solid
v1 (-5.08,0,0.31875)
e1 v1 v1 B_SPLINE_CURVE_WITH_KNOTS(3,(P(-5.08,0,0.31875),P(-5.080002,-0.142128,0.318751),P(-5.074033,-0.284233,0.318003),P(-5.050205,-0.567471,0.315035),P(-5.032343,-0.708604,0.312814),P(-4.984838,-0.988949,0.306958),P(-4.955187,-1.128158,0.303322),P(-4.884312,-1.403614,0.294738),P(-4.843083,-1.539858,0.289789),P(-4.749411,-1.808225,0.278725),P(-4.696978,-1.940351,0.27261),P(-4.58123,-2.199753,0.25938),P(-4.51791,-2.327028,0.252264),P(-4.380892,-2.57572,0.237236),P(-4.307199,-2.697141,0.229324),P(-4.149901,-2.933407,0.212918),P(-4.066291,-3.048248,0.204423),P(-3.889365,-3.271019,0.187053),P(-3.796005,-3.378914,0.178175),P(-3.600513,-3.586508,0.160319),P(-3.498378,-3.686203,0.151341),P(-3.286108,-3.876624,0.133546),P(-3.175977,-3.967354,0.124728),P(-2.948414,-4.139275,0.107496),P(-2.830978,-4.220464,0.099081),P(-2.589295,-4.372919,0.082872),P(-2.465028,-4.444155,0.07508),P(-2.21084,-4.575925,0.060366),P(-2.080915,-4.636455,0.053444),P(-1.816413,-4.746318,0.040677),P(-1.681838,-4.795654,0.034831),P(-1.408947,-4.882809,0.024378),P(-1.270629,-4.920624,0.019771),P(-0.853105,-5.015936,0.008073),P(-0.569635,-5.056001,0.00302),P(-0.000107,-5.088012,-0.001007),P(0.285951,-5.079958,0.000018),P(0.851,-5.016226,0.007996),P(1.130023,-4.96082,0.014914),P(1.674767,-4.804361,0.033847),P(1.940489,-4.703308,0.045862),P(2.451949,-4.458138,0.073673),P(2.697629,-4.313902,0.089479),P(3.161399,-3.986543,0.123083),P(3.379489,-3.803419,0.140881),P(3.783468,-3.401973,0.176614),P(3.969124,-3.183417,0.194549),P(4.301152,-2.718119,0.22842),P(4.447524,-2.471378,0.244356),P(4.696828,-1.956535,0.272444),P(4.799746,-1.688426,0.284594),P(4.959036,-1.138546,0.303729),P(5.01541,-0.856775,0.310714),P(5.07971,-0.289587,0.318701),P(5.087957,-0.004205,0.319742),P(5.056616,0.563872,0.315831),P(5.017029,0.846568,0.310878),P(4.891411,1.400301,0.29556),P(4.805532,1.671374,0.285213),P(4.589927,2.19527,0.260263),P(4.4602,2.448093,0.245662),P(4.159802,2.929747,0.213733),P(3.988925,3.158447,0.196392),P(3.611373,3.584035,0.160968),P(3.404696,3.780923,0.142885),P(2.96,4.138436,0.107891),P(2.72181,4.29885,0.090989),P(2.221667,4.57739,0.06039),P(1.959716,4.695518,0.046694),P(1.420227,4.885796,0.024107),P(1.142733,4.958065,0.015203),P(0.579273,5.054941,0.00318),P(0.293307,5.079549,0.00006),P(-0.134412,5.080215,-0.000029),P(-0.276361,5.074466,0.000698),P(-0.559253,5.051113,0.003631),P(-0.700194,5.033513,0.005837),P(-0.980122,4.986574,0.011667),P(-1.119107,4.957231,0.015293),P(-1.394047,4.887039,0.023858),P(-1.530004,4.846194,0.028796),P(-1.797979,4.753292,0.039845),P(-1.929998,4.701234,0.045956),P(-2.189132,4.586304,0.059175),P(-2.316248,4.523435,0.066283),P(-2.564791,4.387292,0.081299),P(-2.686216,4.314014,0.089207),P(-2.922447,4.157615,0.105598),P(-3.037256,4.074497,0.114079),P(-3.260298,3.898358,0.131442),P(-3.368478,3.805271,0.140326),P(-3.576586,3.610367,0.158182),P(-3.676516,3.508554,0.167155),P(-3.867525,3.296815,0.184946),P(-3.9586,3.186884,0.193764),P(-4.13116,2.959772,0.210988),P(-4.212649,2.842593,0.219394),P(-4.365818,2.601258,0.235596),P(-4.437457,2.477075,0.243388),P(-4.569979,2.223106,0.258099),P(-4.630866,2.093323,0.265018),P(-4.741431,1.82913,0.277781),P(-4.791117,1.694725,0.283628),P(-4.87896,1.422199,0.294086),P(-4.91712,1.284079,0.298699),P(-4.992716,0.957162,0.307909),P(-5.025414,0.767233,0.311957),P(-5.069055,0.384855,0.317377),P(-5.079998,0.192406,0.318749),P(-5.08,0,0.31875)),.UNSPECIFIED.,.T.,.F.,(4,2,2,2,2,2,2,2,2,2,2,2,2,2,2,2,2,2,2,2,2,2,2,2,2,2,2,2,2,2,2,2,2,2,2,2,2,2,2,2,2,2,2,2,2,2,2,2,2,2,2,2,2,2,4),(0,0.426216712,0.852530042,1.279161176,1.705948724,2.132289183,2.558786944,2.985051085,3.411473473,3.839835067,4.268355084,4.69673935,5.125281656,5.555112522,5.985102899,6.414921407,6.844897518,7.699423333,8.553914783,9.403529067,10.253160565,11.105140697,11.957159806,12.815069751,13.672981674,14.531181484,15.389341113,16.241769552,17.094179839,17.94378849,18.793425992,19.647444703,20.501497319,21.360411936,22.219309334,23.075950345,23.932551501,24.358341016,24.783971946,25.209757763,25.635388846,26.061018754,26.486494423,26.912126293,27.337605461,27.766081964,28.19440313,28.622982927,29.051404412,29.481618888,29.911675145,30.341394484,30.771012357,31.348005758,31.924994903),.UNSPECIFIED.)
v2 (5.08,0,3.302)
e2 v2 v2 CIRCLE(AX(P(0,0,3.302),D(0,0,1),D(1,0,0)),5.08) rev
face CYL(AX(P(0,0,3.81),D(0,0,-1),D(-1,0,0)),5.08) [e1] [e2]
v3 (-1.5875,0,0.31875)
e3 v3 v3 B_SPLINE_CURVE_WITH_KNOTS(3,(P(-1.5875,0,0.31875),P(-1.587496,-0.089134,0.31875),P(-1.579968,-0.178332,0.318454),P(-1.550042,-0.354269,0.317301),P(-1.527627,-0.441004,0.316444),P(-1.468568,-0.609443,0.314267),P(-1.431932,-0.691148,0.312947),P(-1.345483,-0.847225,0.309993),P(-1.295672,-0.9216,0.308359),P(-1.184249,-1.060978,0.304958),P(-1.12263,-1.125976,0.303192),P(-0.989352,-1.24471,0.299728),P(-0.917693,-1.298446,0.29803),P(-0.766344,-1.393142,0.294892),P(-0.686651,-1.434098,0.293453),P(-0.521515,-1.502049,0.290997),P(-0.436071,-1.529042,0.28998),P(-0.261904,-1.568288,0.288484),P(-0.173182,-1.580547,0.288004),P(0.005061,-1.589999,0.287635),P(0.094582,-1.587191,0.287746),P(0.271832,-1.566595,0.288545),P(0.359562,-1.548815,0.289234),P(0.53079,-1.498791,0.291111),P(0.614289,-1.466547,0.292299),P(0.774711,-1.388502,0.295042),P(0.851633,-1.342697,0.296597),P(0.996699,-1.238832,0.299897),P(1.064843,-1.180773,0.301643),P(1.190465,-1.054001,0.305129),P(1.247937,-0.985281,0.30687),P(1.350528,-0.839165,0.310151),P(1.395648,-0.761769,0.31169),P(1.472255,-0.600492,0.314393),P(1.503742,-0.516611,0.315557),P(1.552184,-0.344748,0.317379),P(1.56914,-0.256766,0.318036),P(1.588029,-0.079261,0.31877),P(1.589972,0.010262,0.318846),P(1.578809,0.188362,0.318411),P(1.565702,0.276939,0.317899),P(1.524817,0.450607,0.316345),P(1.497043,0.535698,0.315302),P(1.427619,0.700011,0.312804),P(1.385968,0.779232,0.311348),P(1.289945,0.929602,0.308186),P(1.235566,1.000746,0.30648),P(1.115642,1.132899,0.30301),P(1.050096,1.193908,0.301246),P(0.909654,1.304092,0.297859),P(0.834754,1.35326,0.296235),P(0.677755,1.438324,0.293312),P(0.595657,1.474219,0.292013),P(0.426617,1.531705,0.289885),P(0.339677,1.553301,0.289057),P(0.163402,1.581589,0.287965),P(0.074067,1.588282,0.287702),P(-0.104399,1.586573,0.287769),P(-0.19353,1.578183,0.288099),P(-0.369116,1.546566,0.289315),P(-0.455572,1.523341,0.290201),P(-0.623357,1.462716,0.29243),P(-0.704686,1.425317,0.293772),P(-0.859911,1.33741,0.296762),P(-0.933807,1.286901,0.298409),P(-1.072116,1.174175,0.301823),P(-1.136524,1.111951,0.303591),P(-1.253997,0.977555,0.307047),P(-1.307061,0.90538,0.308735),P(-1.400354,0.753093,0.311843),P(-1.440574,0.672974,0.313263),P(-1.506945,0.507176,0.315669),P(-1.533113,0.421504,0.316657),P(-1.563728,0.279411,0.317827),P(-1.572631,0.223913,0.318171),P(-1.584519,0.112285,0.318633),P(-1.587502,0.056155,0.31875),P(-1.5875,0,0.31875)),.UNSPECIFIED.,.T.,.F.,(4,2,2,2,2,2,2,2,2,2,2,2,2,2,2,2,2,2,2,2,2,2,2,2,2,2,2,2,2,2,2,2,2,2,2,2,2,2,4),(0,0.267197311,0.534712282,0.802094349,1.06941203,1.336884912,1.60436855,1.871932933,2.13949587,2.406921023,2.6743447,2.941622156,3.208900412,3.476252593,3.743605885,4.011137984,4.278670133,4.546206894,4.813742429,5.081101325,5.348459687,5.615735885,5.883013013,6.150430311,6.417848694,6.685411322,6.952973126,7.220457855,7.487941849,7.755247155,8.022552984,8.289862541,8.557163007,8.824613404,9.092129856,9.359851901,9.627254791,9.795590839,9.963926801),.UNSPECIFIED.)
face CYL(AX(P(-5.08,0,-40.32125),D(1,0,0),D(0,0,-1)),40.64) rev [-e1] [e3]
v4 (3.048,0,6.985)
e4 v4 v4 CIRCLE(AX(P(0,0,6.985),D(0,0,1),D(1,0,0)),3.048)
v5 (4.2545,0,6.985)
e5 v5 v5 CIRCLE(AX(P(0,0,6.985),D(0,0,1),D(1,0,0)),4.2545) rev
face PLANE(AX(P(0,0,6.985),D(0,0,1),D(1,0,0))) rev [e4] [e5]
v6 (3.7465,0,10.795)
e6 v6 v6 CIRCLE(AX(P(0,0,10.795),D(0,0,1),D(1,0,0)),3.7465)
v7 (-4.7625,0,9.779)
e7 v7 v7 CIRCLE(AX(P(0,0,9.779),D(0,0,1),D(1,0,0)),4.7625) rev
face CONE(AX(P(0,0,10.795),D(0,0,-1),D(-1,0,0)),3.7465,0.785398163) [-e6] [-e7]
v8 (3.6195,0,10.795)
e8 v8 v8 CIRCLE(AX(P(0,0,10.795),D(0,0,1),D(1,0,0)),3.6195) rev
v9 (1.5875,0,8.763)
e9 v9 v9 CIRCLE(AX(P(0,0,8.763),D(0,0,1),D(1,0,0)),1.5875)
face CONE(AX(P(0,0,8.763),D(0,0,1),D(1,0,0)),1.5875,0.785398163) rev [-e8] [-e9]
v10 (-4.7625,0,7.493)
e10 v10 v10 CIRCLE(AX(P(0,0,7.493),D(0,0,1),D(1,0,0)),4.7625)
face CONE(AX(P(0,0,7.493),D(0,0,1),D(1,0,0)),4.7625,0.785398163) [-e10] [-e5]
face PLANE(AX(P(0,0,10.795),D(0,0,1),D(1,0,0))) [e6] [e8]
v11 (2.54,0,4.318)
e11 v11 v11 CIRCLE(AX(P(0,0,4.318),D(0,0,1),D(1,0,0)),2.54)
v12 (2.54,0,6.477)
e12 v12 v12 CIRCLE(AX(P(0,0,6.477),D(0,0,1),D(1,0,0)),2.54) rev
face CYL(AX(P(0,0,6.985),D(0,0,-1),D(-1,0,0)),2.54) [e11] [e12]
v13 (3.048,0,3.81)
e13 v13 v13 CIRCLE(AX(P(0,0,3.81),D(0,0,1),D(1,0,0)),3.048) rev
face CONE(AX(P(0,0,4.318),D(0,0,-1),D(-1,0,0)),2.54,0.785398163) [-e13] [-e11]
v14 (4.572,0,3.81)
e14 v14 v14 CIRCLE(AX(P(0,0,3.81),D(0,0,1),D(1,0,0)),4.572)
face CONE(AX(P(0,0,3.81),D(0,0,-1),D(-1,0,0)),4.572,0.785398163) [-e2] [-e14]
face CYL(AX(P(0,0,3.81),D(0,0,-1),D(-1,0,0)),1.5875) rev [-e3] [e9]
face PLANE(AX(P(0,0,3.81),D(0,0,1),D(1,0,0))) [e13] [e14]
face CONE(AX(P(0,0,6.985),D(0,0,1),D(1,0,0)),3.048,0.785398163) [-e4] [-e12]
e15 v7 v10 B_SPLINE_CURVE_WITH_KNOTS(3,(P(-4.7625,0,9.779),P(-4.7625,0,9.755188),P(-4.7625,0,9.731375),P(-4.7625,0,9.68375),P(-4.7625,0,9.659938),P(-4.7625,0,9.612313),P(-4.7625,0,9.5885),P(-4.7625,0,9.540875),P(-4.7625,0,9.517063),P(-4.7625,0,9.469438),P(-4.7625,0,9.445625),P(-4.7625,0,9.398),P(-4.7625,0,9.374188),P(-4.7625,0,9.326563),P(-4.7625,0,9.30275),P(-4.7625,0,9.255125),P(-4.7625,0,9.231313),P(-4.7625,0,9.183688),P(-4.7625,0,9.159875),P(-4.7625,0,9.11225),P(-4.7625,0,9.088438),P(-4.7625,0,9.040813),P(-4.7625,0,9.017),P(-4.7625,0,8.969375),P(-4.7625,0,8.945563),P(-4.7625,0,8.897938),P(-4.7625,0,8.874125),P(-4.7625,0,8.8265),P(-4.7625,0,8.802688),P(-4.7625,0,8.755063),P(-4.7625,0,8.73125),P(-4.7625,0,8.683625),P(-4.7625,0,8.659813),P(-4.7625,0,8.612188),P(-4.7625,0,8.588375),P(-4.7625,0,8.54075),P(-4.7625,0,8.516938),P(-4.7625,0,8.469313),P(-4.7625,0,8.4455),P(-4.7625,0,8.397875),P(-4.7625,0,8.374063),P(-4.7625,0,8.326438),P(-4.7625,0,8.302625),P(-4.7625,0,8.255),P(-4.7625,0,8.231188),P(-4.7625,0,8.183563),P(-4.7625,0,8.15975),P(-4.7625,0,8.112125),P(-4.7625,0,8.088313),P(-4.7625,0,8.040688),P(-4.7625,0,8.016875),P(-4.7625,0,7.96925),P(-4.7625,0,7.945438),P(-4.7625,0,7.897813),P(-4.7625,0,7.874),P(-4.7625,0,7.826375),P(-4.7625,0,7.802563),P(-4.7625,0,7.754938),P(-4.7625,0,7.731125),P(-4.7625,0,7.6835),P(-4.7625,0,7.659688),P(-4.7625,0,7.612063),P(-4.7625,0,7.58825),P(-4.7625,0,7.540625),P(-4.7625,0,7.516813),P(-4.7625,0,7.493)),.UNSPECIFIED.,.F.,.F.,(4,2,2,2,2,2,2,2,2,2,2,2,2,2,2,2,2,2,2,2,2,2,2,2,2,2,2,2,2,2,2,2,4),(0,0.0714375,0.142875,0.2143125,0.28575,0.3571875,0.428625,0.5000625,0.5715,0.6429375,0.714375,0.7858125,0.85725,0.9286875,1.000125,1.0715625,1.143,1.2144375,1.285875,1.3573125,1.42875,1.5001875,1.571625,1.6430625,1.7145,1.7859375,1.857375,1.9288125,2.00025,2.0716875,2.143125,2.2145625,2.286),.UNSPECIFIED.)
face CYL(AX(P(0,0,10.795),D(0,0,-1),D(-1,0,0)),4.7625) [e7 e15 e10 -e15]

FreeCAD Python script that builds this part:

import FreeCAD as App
import Part
import Sketcher

V = App.Vector
Q = App.Units.Quantity


def edges_at(feature, points):
    """Names of the edges that pass closest to the given points."""
    edges = feature.Shape.Edges
    near = lambda p: min(range(len(edges)), key=lambda i: edges[i].distToShape(Part.Vertex(*p))[0])
    return sorted({f"Edge{near(p) + 1}" for p in points})

doc = App.newDocument("Part")
body = doc.addObject("PartDesign::Body", "Body")

sketch1 = doc.addObject("Sketcher::SketchObject", "Sketch")
body.addObject(sketch1)
sketch1.AttachmentSupport = (doc.XY_Plane, [""])
sketch1.MapMode = "FlatFace"
sketch1.addGeometry([
    Part.Circle(V(0, 0, 0), V(0, 0, 1), 5.08),
    Part.Circle(V(0, 0, 0), V(0, 0, 1), 1.5875),
], False)
sketch1.addConstraint([
    Sketcher.Constraint("Coincident", 0, 3, -1, 1),
    Sketcher.Constraint("Coincident", 1, 3, -1, 1),
    Sketcher.Constraint("Diameter", 0, Q("0.4 in")),
    Sketcher.Constraint("Diameter", 1, Q("0.125 in")),
])
pad1 = doc.addObject("PartDesign::Pad", "Pad")
body.addObject(pad1)
pad1.Profile = sketch1
pad1.Length = Q("0.15 in")

sketch2 = doc.addObject("Sketcher::SketchObject", "Sketch001")
body.addObject(sketch2)
sketch2.AttachmentSupport = (doc.XY_Plane, [""])
sketch2.MapMode = "FlatFace"
sketch2.AttachmentOffset = App.Placement(V(0, 0, 0.15 * 25.4), App.Rotation())
sketch2.addGeometry([
    Part.Circle(V(0, 0, 0), V(0, 0, 1), 2.54),
    Part.Circle(V(0, 0, 0), V(0, 0, 1), 1.5875),
], False)
sketch2.addConstraint([
    Sketcher.Constraint("Coincident", 0, 3, -1, 1),
    Sketcher.Constraint("Coincident", 1, 3, -1, 1),
    Sketcher.Constraint("Diameter", 0, Q("0.2 in")),
    Sketcher.Constraint("Diameter", 1, Q("0.125 in")),
])
pad2 = doc.addObject("PartDesign::Pad", "Pad001")
body.addObject(pad2)
pad2.Profile = sketch2
pad2.Length = Q("0.125 in")

sketch3 = doc.addObject("Sketcher::SketchObject", "Sketch002")
body.addObject(sketch3)
sketch3.AttachmentSupport = (doc.XY_Plane, [""])
sketch3.MapMode = "FlatFace"
sketch3.AttachmentOffset = App.Placement(V(0, 0, 0.275 * 25.4), App.Rotation())
sketch3.addGeometry([
    Part.Circle(V(0, 0, 0), V(0, 0, 1), 4.7625),
    Part.Circle(V(0, 0, 0), V(0, 0, 1), 1.5875),
], False)
sketch3.addConstraint([
    Sketcher.Constraint("Coincident", 0, 3, -1, 1),
    Sketcher.Constraint("Coincident", 1, 3, -1, 1),
    Sketcher.Constraint("Diameter", 0, Q("0.375 in")),
    Sketcher.Constraint("Diameter", 1, Q("0.125 in")),
])
pad3 = doc.addObject("PartDesign::Pad", "Pad002")
body.addObject(pad3)
pad3.Profile = sketch3
pad3.Length = Q("0.15 in")
doc.recompute()

chamfer = doc.addObject("PartDesign::Chamfer", "Chamfer")
body.addObject(chamfer)
chamfer.Base = (pad3, edges_at(pad3, [(-2.54, 0, 6.985), (-2.54, 0, 3.81)]))
chamfer.Size = Q("0.02 in")
doc.recompute()

chamfer2 = doc.addObject("PartDesign::Chamfer", "Chamfer001")
body.addObject(chamfer2)
chamfer2.Base = (chamfer, edges_at(chamfer, [(4.763, 0, 6.985), (5.08, 0, 3.81)]))
chamfer2.Size = Q("0.02 in")
doc.recompute()

chamfer3 = doc.addObject("PartDesign::Chamfer", "Chamfer002")
body.addObject(chamfer3)
chamfer3.Base = (chamfer2, edges_at(chamfer2, [(1.587, 0, 10.795)]))
chamfer3.Size = Q("0.08 in")

sketch4 = doc.addObject("Sketcher::SketchObject", "Sketch003")
body.addObject(sketch4)
sketch4.AttachmentSupport = (doc.YZ_Plane, [""])
sketch4.MapMode = "FlatFace"
sketch4.addGeometry(Part.Circle(V(0, -40.32125, 0), V(0, 0, 1), 40.64), False)
sketch4.addConstraint([
    Sketcher.Constraint("PointOnObject", 0, 3, -2),
    Sketcher.Constraint("Diameter", 0, Q("3.2 in")),
    Sketcher.Constraint("DistanceY", 0, 3, -1, 1, Q("40.32125 mm")),
])
pocket1 = doc.addObject("PartDesign::Pocket", "Pocket")
body.addObject(pocket1)
pocket1.Profile = sketch4
pocket1.Type = "ThroughAll"
pocket1.Midplane = True
doc.recompute()

chamfer4 = doc.addObject("PartDesign::Chamfer", "Chamfer003")
body.addObject(chamfer4)
chamfer4.Base = (pocket1, edges_at(pocket1, [(4.763, 0, 10.795)]))
chamfer4.Size = Q("0.04 in")

doc.recompute()
